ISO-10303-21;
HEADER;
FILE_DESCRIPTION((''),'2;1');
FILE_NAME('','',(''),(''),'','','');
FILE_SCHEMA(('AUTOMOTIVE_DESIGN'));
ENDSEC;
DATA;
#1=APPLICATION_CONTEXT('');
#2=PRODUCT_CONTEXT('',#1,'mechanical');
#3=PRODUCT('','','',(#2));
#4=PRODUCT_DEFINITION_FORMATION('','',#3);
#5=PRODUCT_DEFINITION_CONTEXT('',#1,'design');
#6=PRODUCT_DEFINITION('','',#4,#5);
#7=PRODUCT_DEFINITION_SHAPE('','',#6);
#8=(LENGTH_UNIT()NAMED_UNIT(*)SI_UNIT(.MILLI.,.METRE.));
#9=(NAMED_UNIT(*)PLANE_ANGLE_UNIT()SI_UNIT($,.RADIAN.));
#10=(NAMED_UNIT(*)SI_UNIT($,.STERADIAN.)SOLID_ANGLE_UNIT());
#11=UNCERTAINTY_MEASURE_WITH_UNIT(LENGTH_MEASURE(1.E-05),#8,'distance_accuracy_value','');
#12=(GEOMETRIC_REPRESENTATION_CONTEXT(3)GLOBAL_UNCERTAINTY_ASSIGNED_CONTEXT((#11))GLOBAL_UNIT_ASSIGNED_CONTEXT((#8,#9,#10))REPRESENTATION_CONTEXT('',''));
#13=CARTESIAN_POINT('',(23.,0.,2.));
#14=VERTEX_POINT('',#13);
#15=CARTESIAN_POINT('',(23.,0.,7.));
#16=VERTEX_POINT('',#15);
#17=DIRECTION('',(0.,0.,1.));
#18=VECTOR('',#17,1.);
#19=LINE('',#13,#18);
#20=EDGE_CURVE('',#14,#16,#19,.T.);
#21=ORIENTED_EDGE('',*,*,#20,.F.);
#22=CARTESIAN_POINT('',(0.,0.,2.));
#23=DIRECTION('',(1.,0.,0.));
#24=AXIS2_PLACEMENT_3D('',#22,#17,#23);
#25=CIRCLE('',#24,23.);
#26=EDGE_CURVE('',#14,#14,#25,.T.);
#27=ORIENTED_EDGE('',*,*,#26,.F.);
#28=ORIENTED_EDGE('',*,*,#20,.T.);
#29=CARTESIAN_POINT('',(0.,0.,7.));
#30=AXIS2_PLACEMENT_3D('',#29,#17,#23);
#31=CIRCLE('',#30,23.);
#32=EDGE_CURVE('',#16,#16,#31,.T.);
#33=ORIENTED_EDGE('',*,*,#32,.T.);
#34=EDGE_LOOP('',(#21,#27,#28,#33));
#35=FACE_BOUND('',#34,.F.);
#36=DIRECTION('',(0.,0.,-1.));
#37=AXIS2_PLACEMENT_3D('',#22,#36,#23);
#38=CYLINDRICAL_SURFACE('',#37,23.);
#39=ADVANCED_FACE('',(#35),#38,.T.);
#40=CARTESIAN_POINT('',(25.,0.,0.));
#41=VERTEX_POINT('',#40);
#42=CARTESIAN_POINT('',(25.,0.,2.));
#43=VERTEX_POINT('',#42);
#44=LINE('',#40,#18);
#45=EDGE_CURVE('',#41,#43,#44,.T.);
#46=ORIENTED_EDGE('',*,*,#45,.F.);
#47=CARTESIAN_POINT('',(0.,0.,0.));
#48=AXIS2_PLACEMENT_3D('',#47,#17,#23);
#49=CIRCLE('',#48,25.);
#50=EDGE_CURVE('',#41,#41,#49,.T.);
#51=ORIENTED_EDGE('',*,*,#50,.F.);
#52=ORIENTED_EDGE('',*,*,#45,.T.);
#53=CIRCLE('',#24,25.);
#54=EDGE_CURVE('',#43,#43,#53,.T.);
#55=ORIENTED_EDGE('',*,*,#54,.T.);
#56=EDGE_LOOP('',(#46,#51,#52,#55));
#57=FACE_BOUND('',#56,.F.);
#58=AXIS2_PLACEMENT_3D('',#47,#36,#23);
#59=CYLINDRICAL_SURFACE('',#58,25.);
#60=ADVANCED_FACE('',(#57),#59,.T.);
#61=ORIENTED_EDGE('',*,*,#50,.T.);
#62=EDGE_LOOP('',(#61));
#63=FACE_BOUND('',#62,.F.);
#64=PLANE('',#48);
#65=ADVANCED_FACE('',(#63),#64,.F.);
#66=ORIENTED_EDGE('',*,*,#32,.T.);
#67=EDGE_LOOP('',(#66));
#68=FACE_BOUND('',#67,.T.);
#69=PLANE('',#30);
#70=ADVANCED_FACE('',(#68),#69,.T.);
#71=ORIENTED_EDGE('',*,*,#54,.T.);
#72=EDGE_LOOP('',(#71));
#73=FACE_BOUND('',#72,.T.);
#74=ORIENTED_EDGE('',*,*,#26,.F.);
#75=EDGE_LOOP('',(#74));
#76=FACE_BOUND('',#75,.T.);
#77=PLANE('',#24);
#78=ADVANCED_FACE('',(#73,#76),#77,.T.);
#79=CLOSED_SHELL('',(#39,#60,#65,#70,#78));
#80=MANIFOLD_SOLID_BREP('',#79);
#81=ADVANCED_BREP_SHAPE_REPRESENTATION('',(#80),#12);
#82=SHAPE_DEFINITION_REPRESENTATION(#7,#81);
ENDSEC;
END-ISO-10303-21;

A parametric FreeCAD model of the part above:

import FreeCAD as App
import Part
import Sketcher
from FreeCAD import Vector

doc = App.newDocument("Part")
body = doc.addObject("PartDesign::Body", "Body")

# Sketch on XY plane
sketch1 = body.newObject("Sketcher::SketchObject", "Sketch")
sketch1.AttachmentSupport = (doc.getObject("XY_Plane"), [""])
sketch1.MapMode = "FlatFace"
sketch1.addGeometry(Part.Circle(Vector(0, 0, 0), Vector(0, 0, 1), 25), False)
sketch1.addConstraint([
    Sketcher.Constraint("Coincident", 0, 3, -1, 1),
    Sketcher.Constraint("Diameter", 0, 50.0),
])
pad1 = body.newObject("PartDesign::Pad", "Pad")
pad1.Profile = sketch1
pad1.Length = 2

# Sketch on XY plane
sketch2 = body.newObject("Sketcher::SketchObject", "Sketch001")
sketch2.AttachmentSupport = (doc.getObject("XY_Plane"), [""])
sketch2.MapMode = "FlatFace"
sketch2.AttachmentOffset = App.Placement(Vector(0, 0, 2), App.Rotation())
sketch2.addGeometry(Part.Circle(Vector(0, 0, 0), Vector(0, 0, 1), 23), False)
sketch2.addConstraint([
    Sketcher.Constraint("Coincident", 0, 3, -1, 1),
    Sketcher.Constraint("Diameter", 0, 46.0),
])
pad2 = body.newObject("PartDesign::Pad", "Pad001")
pad2.Profile = sketch2
pad2.Length = 5

doc.recompute()
